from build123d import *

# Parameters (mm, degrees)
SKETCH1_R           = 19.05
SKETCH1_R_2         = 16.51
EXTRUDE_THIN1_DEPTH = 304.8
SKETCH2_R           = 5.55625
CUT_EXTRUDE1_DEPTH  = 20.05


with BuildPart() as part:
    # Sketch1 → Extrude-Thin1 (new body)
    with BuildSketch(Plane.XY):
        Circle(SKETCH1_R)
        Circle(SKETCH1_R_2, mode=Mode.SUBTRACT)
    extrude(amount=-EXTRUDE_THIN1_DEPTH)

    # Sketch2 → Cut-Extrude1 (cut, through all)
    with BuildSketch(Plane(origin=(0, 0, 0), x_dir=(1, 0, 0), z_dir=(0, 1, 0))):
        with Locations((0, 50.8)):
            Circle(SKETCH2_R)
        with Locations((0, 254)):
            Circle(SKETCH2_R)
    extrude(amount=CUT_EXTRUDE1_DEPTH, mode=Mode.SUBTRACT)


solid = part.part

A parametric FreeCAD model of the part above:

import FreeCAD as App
import Part
import Sketcher
from FreeCAD import Vector
Q = App.Units.Quantity

doc = App.newDocument("Part")
params = doc.addObject("Spreadsheet::Sheet", "Params")
for row, (alias, value) in enumerate([
    ("sketch1_diameter", "1.5 in"),
    ("sketch1_diameter2", "1.3 in"),
    ("pad1_length", "12 in"),
    ("sketch2_diameter", "0.4375 in"),
], start=1):
    params.set(f"A{row}", alias)
    params.set(f"B{row}", "=" + value)
    params.setAlias(f"B{row}", alias)

body = doc.addObject("PartDesign::Body", "Body")

# Sketch on XY plane
sketch1 = body.newObject("Sketcher::SketchObject", "Sketch")
sketch1.AttachmentSupport = (doc.getObject("XY_Plane"), [""])
sketch1.MapMode = "FlatFace"
sketch1.addGeometry(Part.Circle(Vector(0, 0, 0), Vector(0, 0, 1), 19), False)
sketch1.addGeometry(Part.Circle(Vector(0, 0, 0), Vector(0, 0, 1), 17), False)
sketch1.addConstraint(Sketcher.Constraint("Coincident", 0, 3, -1, 1))
sketch1.addConstraint(Sketcher.Constraint("Coincident", 1, 3, -1, 1))
sketch1.addConstraint(Sketcher.Constraint("Diameter", 0, Q("1.5 in")))
sketch1.addConstraint(Sketcher.Constraint("Diameter", 1, Q("1.3 in")))
sketch1.setExpression("Constraints[2]", "Params.sketch1_diameter")
sketch1.setExpression("Constraints[3]", "Params.sketch1_diameter2")
pad1 = body.newObject("PartDesign::Pad", "Pad")
pad1.Profile = sketch1
pad1.setExpression("Length", "Params.pad1_length")
pad1.Reversed = True

# Sketch on XZ plane
sketch2 = body.newObject("Sketcher::SketchObject", "Sketch001")
sketch2.AttachmentSupport = (doc.getObject("XZ_Plane"), [""])
sketch2.MapMode = "FlatFace"
sketch2.addGeometry(Part.Circle(Vector(0, -51, 0), Vector(0, 0, 1), 6), False)
sketch2.addGeometry(Part.Circle(Vector(0, -254, 0), Vector(0, 0, 1), 6), False)
sketch2.addConstraint(Sketcher.Constraint("Equal", 0, 1))
sketch2.addConstraint(Sketcher.Constraint("PointOnObject", 0, 3, -2))
sketch2.addConstraint(Sketcher.Constraint("PointOnObject", 1, 3, -2))
sketch2.addConstraint(Sketcher.Constraint("Diameter", 0, Q("0.4375 in")))
sketch2.addConstraint(Sketcher.Constraint("DistanceY", 0, 3, -1, 1, Q("2 in")))
sketch2.addConstraint(Sketcher.Constraint("DistanceY", 1, 3, -1, 1, Q("10 in")))
sketch2.setExpression("Constraints[3]", "Params.sketch2_diameter")
pocket1 = body.newObject("PartDesign::Pocket", "Pocket")
pocket1.Profile = sketch2
pocket1.Type = "ThroughAll"

doc.recompute()
